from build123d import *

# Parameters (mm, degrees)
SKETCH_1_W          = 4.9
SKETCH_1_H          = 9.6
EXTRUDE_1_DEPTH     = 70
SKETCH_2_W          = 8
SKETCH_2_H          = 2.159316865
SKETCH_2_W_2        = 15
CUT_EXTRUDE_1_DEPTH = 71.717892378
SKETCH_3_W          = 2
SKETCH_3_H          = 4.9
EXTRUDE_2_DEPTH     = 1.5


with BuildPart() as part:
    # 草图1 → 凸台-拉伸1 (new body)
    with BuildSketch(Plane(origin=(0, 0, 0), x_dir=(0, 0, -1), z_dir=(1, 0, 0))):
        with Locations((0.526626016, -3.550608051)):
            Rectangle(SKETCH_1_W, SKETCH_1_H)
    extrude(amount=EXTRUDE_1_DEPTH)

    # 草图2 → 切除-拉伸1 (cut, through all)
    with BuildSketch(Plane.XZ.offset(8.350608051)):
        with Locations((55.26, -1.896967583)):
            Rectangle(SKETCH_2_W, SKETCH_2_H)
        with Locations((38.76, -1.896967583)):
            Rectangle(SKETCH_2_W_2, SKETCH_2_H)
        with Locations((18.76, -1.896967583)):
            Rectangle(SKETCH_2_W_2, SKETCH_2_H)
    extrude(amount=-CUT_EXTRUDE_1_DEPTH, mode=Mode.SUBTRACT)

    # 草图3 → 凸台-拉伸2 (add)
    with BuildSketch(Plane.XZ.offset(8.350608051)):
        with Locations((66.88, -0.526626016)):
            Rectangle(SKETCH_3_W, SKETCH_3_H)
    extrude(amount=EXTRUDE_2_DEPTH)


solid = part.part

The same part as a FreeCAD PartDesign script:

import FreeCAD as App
import Part
import Sketcher
from FreeCAD import Vector


def add_polygon(sketch, points):
    """Adds a closed chain of lines whose ends are joined by coincident constraints."""
    first, n = sketch.GeometryCount, len(points)
    for a, b in zip(points, points[1:] + points[:1]):
        sketch.addGeometry(Part.LineSegment(App.Vector(*a, 0), App.Vector(*b, 0)), False)
    for i in range(n):
        sketch.addConstraint(Sketcher.Constraint("Coincident", first + i, 2, first + (i + 1) % n, 1))

doc = App.newDocument("Part")
body = doc.addObject("PartDesign::Body", "Body")

# Sketch on YZ plane
sketch1 = body.newObject("Sketcher::SketchObject", "Sketch")
sketch1.AttachmentSupport = (doc.getObject("YZ_Plane"), [""])
sketch1.MapMode = "FlatFace"
add_polygon(sketch1, [(1.2, 1.9), (-8.4, 1.9), (-8.4, -3), (1.2, -3)])  # lines 0-3
sketch1.addConstraint([
    Sketcher.Constraint("Horizontal", 0),
    Sketcher.Constraint("Vertical", 1),
    Sketcher.Constraint("Horizontal", 2),
    Sketcher.Constraint("Vertical", 3),
    Sketcher.Constraint("DistanceX", 0, 2, 0, 1, 9.6),
    Sketcher.Constraint("DistanceY", 1, 2, 1, 1, 4.9),
    Sketcher.Constraint("DistanceX", 0, 2, -1, 1, 8.350608),
    Sketcher.Constraint("DistanceY", -1, 1, 0, 2, 1.923374),
])
pad1 = body.newObject("PartDesign::Pad", "Pad")
pad1.Profile = sketch1
pad1.Length = 70

# Sketch on XZ plane
sketch2 = body.newObject("Sketcher::SketchObject", "Sketch001")
sketch2.AttachmentSupport = (doc.getObject("XZ_Plane"), [""])
sketch2.MapMode = "FlatFace"
sketch2.AttachmentOffset = App.Placement(Vector(0, 0, 8.350608), App.Rotation())
add_polygon(sketch2, [(51.3, -0.8), (51.3, -3), (59.3, -3), (59.3, -0.8)])  # lines 0-3
add_polygon(sketch2, [(31.3, -0.8), (31.3, -3), (46.3, -3), (46.3, -0.8)])  # lines 4-7
add_polygon(sketch2, [(11.3, -0.8), (11.3, -3), (26.3, -3), (26.3, -0.8)])  # lines 8-11
sketch2.addConstraint([
    Sketcher.Constraint("Vertical", 0),
    Sketcher.Constraint("Horizontal", 1),
    Sketcher.Constraint("Vertical", 2),
    Sketcher.Constraint("Horizontal", 3),
    Sketcher.Constraint("Vertical", 4),
    Sketcher.Constraint("Horizontal", 5),
    Sketcher.Constraint("Vertical", 6),
    Sketcher.Constraint("Horizontal", 7),
    Sketcher.Constraint("Vertical", 8),
    Sketcher.Constraint("Horizontal", 9),
    Sketcher.Constraint("Vertical", 10),
    Sketcher.Constraint("Horizontal", 11),
    Sketcher.Constraint("Horizontal", 1, 2, 4, 2),
    Sketcher.Constraint("Horizontal", 3, 2, 6, 2),
    Sketcher.Constraint("Horizontal", 5, 2, 8, 2),
    Sketcher.Constraint("Horizontal", 7, 2, 10, 2),
    Sketcher.Constraint("Equal", 7, 9),
    Sketcher.Constraint("DistanceX", 1, 1, 1, 2, 8.0),
    Sketcher.Constraint("DistanceX", 5, 1, 5, 2, 15.0),
    Sketcher.Constraint("DistanceX", 4, 2, 0, 2, 20.0),
    Sketcher.Constraint("DistanceX", 8, 2, 4, 2, 20.0),
    Sketcher.Constraint("DistanceX", -1, 1, 0, 2, 51.26),
    Sketcher.Constraint("DistanceY", 0, 2, 0, 1, 2.159317),
    Sketcher.Constraint("DistanceY", 2, 2, -1, 1, 0.817309),
])
pocket1 = body.newObject("PartDesign::Pocket", "Pocket")
pocket1.Profile = sketch2
pocket1.Type = "ThroughAll"

# Sketch on XZ plane
sketch3 = body.newObject("Sketcher::SketchObject", "Sketch002")
sketch3.AttachmentSupport = (doc.getObject("XZ_Plane"), [""])
sketch3.MapMode = "FlatFace"
sketch3.AttachmentOffset = App.Placement(Vector(0, 0, 8.350608), App.Rotation())
add_polygon(sketch3, [(65.9, 1.9), (65.9, -3), (67.9, -3), (67.9, 1.9)])  # lines 0-3
sketch3.addConstraint([
    Sketcher.Constraint("Vertical", 0),
    Sketcher.Constraint("Horizontal", 1),
    Sketcher.Constraint("Vertical", 2),
    Sketcher.Constraint("Horizontal", 3),
    Sketcher.Constraint("DistanceX", 1, 1, 1, 2, 2.0),
    Sketcher.Constraint("DistanceY", 0, 2, 0, 1, 4.9),
    Sketcher.Constraint("DistanceX", -1, 1, 0, 2, 65.88),
    Sketcher.Constraint("DistanceY", 0, 2, -1, 1, 2.976626),
])
pad2 = body.newObject("PartDesign::Pad", "Pad001")
pad2.Profile = sketch3
pad2.Length = 1.5

doc.recompute()
